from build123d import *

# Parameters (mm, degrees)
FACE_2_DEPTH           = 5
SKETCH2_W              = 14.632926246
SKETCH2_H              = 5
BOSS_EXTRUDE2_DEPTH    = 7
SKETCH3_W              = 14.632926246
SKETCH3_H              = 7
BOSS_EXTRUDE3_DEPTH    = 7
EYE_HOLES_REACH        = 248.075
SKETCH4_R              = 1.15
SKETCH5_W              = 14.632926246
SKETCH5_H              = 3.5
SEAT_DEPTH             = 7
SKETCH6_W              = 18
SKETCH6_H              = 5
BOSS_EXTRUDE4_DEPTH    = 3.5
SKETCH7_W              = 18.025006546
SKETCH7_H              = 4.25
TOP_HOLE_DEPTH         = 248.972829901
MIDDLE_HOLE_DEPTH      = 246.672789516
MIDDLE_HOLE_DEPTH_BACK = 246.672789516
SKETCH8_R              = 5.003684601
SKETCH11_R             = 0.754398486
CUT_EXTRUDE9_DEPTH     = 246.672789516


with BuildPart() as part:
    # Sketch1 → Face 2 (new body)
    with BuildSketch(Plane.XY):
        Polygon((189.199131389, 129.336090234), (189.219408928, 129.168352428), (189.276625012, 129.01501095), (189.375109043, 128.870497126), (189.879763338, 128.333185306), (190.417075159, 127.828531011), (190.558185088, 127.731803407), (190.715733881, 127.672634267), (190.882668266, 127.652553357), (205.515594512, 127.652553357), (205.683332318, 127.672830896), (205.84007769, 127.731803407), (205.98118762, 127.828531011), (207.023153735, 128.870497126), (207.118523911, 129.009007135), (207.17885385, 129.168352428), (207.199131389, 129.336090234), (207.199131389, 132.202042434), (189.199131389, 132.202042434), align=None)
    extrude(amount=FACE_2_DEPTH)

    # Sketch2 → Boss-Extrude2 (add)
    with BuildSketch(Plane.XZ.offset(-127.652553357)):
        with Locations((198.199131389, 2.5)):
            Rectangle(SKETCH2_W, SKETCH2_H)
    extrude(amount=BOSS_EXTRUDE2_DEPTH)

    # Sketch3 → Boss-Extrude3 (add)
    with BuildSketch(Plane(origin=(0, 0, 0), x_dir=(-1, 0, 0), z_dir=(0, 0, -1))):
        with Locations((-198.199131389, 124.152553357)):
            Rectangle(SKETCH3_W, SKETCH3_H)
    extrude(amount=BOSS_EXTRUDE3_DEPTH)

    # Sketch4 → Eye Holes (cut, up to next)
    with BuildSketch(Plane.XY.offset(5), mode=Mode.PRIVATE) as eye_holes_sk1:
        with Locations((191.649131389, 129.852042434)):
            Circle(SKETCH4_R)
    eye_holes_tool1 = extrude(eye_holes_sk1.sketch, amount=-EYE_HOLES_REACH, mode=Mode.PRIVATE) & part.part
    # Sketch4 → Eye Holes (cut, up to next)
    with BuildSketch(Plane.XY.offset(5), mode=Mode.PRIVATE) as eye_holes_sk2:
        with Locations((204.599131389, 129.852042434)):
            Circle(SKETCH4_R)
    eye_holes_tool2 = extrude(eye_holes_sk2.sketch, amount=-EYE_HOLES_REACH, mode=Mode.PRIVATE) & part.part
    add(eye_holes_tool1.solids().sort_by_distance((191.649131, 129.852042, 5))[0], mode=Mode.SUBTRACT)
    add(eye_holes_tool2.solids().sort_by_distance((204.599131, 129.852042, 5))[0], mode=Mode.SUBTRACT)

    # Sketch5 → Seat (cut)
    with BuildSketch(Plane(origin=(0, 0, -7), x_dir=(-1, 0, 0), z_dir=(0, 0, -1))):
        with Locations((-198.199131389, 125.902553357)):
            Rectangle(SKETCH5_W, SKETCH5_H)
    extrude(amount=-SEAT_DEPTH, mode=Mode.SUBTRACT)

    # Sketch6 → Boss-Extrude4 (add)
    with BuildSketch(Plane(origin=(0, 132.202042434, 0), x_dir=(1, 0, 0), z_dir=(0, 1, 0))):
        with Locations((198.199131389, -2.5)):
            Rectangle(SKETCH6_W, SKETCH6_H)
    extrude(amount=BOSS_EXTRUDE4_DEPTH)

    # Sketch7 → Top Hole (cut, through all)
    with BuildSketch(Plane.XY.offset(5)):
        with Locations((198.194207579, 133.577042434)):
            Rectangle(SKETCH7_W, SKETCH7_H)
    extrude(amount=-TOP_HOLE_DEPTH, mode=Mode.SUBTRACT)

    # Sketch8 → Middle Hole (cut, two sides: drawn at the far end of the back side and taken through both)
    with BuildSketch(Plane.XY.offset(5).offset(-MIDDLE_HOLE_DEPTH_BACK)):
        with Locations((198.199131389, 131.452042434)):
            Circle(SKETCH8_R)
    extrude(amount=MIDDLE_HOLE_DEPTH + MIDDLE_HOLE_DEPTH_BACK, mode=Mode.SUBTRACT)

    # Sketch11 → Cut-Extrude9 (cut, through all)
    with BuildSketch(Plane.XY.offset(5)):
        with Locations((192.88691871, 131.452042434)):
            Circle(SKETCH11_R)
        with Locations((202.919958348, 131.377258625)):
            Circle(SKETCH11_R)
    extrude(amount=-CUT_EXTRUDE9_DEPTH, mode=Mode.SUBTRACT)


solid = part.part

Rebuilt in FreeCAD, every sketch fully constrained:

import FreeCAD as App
import Part
import Sketcher
from FreeCAD import Vector
Q = App.Units.Quantity

doc = App.newDocument("Part")
body = doc.addObject("PartDesign::Body", "Body")

sketch1 = body.newObject("Sketcher::SketchObject", "Sketch")
sketch1.AttachmentSupport = (doc.getObject("XY_Plane"), [""])
sketch1.MapMode = "FlatFace"
sketch1.addGeometry([
    Part.LineSegment(Vector(189.199131, 129.33609, 0), Vector(189.219409, 129.168352, 0)),
    Part.LineSegment(Vector(189.219409, 129.168352, 0), Vector(189.276625, 129.015011, 0)),
    Part.LineSegment(Vector(189.276625, 129.015011, 0), Vector(189.375109, 128.870497, 0)),
    Part.LineSegment(Vector(189.375109, 128.870497, 0), Vector(189.879763, 128.333185, 0)),
    Part.LineSegment(Vector(189.879763, 128.333185, 0), Vector(190.417075, 127.828531, 0)),
    Part.LineSegment(Vector(190.417075, 127.828531, 0), Vector(190.558185, 127.731803, 0)),
    Part.LineSegment(Vector(190.558185, 127.731803, 0), Vector(190.715734, 127.672634, 0)),
    Part.LineSegment(Vector(190.715734, 127.672634, 0), Vector(190.882668, 127.652553, 0)),
    Part.LineSegment(Vector(190.882668, 127.652553, 0), Vector(205.515595, 127.652553, 0)),
    Part.LineSegment(Vector(205.515595, 127.652553, 0), Vector(205.683332, 127.672831, 0)),
    Part.LineSegment(Vector(205.683332, 127.672831, 0), Vector(205.840078, 127.731803, 0)),
    Part.LineSegment(Vector(205.840078, 127.731803, 0), Vector(205.981188, 127.828531, 0)),
    Part.LineSegment(Vector(205.981188, 127.828531, 0), Vector(207.023154, 128.870497, 0)),
    Part.LineSegment(Vector(207.023154, 128.870497, 0), Vector(207.118524, 129.009007, 0)),
    Part.LineSegment(Vector(207.118524, 129.009007, 0), Vector(207.178854, 129.168352, 0)),
    Part.LineSegment(Vector(207.178854, 129.168352, 0), Vector(207.199131, 129.33609, 0)),
    Part.LineSegment(Vector(207.199131, 129.33609, 0), Vector(207.199131, 132.202042, 0)),
    Part.LineSegment(Vector(207.199131, 132.202042, 0), Vector(189.199131, 132.202042, 0)),
    Part.LineSegment(Vector(189.199131, 132.202042, 0), Vector(189.199131, 129.33609, 0)),
], False)
sketch1.addConstraint([
    Sketcher.Constraint("Coincident", 0, 2, 1, 1),
    Sketcher.Constraint("Coincident", 1, 2, 2, 1),
    Sketcher.Constraint("Coincident", 2, 2, 3, 1),
    Sketcher.Constraint("Coincident", 3, 2, 4, 1),
    Sketcher.Constraint("Coincident", 4, 2, 5, 1),
    Sketcher.Constraint("Coincident", 5, 2, 6, 1),
    Sketcher.Constraint("Coincident", 6, 2, 7, 1),
    Sketcher.Constraint("Coincident", 7, 2, 8, 1),
    Sketcher.Constraint("Coincident", 8, 2, 9, 1),
    Sketcher.Constraint("Coincident", 9, 2, 10, 1),
    Sketcher.Constraint("Coincident", 10, 2, 11, 1),
    Sketcher.Constraint("Coincident", 11, 2, 12, 1),
    Sketcher.Constraint("Coincident", 12, 2, 13, 1),
    Sketcher.Constraint("Coincident", 13, 2, 14, 1),
    Sketcher.Constraint("Coincident", 14, 2, 15, 1),
    Sketcher.Constraint("Coincident", 15, 2, 16, 1),
    Sketcher.Constraint("Coincident", 16, 2, 17, 1),
    Sketcher.Constraint("Coincident", 17, 2, 18, 1),
    Sketcher.Constraint("Coincident", 18, 2, 0, 1),
    Sketcher.Constraint("Horizontal", 8),
    Sketcher.Constraint("Vertical", 16),
    Sketcher.Constraint("Horizontal", 17),
    Sketcher.Constraint("Vertical", 18),
    Sketcher.Constraint("Perpendicular", 0, 9),
    Sketcher.Constraint("Horizontal", 5, 2, 10, 2),
    Sketcher.Constraint("Horizontal", 4, 2, 11, 2),
    Sketcher.Constraint("Horizontal", 2, 2, 12, 2),
    Sketcher.Constraint("Horizontal", 0, 2, 14, 2),
    Sketcher.Constraint("Horizontal", 15, 2, 18, 2),
    Sketcher.Constraint("Equal", 3, 4),
    Sketcher.Constraint("Equal", 0, 9),
    Sketcher.Constraint("Equal", 5, 11),
    Sketcher.Constraint("Equal", 9, 15),
    Sketcher.Constraint("DistanceX", 17, 2, 17, 1, 18.0),
    Sketcher.Constraint("Angle", 12, Q("45 deg")),
    Sketcher.Constraint("DistanceX", 0, 2, 2, 2, 0.1557),
    Sketcher.Constraint("DistanceX", 6, 2, 9, 2, 14.967598),
    Sketcher.Constraint("DistanceY", 9, 2, 4, 2, 0.1557),
    Sketcher.Constraint("DistanceX", 12, 2, 14, 2, 0.1557),
    Sketcher.Constraint("Distance", 0, 0.168959),
    Sketcher.Constraint("Distance", 1, 0.163668),
    Sketcher.Constraint("Distance", 2, 0.174881),
    Sketcher.Constraint("Distance", 5, 0.17108),
    Sketcher.Constraint("Distance", 10, 0.167472),
    Sketcher.Constraint("Distance", 13, 0.168168),
    Sketcher.Constraint("DistanceX", 8, 1, 8, 2, 14.632926),
    Sketcher.Constraint("DistanceY", 16, 1, 16, 2, 2.865952),
    Sketcher.Constraint("DistanceX", -1, 1, 0, 2, 189.219409),
    Sketcher.Constraint("DistanceY", -1, 1, 1, 2, 129.015011),
    Sketcher.Constraint("DistanceY", -1, 1, 4, 2, 127.828531),
    Sketcher.Constraint("DistanceX", -1, 1, 7, 2, 190.882668),
    Sketcher.Constraint("DistanceX", -1, 1, 15, 2, 207.199131),
    Sketcher.Constraint("DistanceY", -1, 1, 15, 2, 129.33609),
    Sketcher.Constraint("DistanceY", 3, 2, 2, 2, 0.537312),
    Sketcher.Constraint("DistanceX", 1, 2, 3, 2, 0.603138),
    Sketcher.Constraint("DistanceY", 6, 2, 5, 2, 0.059169),
    Sketcher.Constraint("DistanceX", 12, 2, 13, 2, 0.09537),
])
pad1 = body.newObject("PartDesign::Pad", "Pad")
pad1.Profile = sketch1
pad1.Length = 5

sketch2 = body.newObject("Sketcher::SketchObject", "Sketch001")
sketch2.AttachmentSupport = (doc.getObject("XZ_Plane"), [""])
sketch2.MapMode = "FlatFace"
sketch2.AttachmentOffset = App.Placement(Vector(0, 0, -127.652553), App.Rotation())
sketch2.addGeometry([
    Part.LineSegment(Vector(190.882668, 5, 0), Vector(190.882668, 0, 0)),
    Part.LineSegment(Vector(190.882668, 0, 0), Vector(205.515595, 0, 0)),
    Part.LineSegment(Vector(205.515595, 0, 0), Vector(205.515595, 5, 0)),
    Part.LineSegment(Vector(205.515595, 5, 0), Vector(190.882668, 5, 0)),
], False)
sketch2.addConstraint([
    Sketcher.Constraint("Coincident", 0, 2, 1, 1),
    Sketcher.Constraint("Coincident", 1, 2, 2, 1),
    Sketcher.Constraint("Coincident", 2, 2, 3, 1),
    Sketcher.Constraint("Coincident", 3, 2, 0, 1),
    Sketcher.Constraint("Vertical", 0),
    Sketcher.Constraint("Horizontal", 1),
    Sketcher.Constraint("Vertical", 2),
    Sketcher.Constraint("Horizontal", 3),
    Sketcher.Constraint("PointOnObject", 0, 2, -1),
    Sketcher.Constraint("DistanceY", 0, 2, 0, 1, 5.0),
    Sketcher.Constraint("DistanceX", 1, 1, 1, 2, 14.632926),
    Sketcher.Constraint("DistanceX", -1, 1, 0, 2, 190.882668),
])
pad2 = body.newObject("PartDesign::Pad", "Pad001")
pad2.Profile = sketch2
pad2.Length = 7

sketch3 = body.newObject("Sketcher::SketchObject", "Sketch002")
sketch3.AttachmentSupport = (doc.getObject("XY_Plane"), [""])
sketch3.MapMode = "FlatFace"
sketch3.addGeometry([
    Part.LineSegment(Vector(205.515595, 127.652553, 0), Vector(205.515595, 120.652553, 0)),
    Part.LineSegment(Vector(205.515595, 120.652553, 0), Vector(190.882668, 120.652553, 0)),
    Part.LineSegment(Vector(190.882668, 120.652553, 0), Vector(190.882668, 127.652553, 0)),
    Part.LineSegment(Vector(190.882668, 127.652553, 0), Vector(205.515595, 127.652553, 0)),
], False)
sketch3.addConstraint([
    Sketcher.Constraint("Coincident", 0, 2, 1, 1),
    Sketcher.Constraint("Coincident", 1, 2, 2, 1),
    Sketcher.Constraint("Coincident", 2, 2, 3, 1),
    Sketcher.Constraint("Coincident", 3, 2, 0, 1),
    Sketcher.Constraint("Vertical", 0),
    Sketcher.Constraint("Horizontal", 1),
    Sketcher.Constraint("Vertical", 2),
    Sketcher.Constraint("Horizontal", 3),
    Sketcher.Constraint("DistanceY", 0, 2, 0, 1, 7.0),
    Sketcher.Constraint("DistanceX", 1, 2, 1, 1, 14.632926),
    Sketcher.Constraint("DistanceX", -1, 1, 1, 2, 190.882668),
    Sketcher.Constraint("DistanceY", -1, 1, 0, 2, 120.652553),
])
pad3 = body.newObject("PartDesign::Pad", "Pad002")
pad3.Profile = sketch3
pad3.Length = 7
pad3.Reversed = True

sketch4 = body.newObject("Sketcher::SketchObject", "Sketch003")
sketch4.AttachmentSupport = (doc.getObject("XY_Plane"), [""])
sketch4.MapMode = "FlatFace"
sketch4.AttachmentOffset = App.Placement(Vector(0, 0, 5), App.Rotation())
sketch4.addGeometry(Part.Circle(Vector(191.649131, 129.852042, 0), Vector(0, 0, 1), 1.15), False)
sketch4.addConstraint([
    Sketcher.Constraint("Diameter", 0, 2.3),
    Sketcher.Constraint("DistanceX", -1, 1, 0, 3, 191.649131),
    Sketcher.Constraint("DistanceY", -1, 1, 0, 3, 129.852042),
])
pocket1 = body.newObject("PartDesign::Pocket", "Pocket")
pocket1.Profile = sketch4
pocket1.Type = "UpToFirst"

sketch5 = body.newObject("Sketcher::SketchObject", "Sketch004")
sketch5.AttachmentSupport = (doc.getObject("XY_Plane"), [""])
sketch5.MapMode = "FlatFace"
sketch5.AttachmentOffset = App.Placement(Vector(0, 0, 5), App.Rotation())
sketch5.addGeometry(Part.Circle(Vector(204.599131, 129.852042, 0), Vector(0, 0, 1), 1.15), False)
sketch5.addConstraint([
    Sketcher.Constraint("Diameter", 0, 2.3),
    Sketcher.Constraint("DistanceX", -1, 1, 0, 3, 204.599131),
    Sketcher.Constraint("DistanceY", -1, 1, 0, 3, 129.852042),
])
pocket2 = body.newObject("PartDesign::Pocket", "Pocket001")
pocket2.Profile = sketch5
pocket2.Type = "UpToFirst"

sketch6 = body.newObject("Sketcher::SketchObject", "Sketch005")
sketch6.AttachmentSupport = (doc.getObject("XY_Plane"), [""])
sketch6.MapMode = "FlatFace"
sketch6.AttachmentOffset = App.Placement(Vector(0, 0, -7), App.Rotation())
sketch6.addGeometry([
    Part.LineSegment(Vector(205.515595, 127.652553, 0), Vector(205.515595, 124.152553, 0)),
    Part.LineSegment(Vector(205.515595, 124.152553, 0), Vector(190.882668, 124.152553, 0)),
    Part.LineSegment(Vector(190.882668, 124.152553, 0), Vector(190.882668, 127.652553, 0)),
    Part.LineSegment(Vector(190.882668, 127.652553, 0), Vector(205.515595, 127.652553, 0)),
], False)
sketch6.addConstraint([
    Sketcher.Constraint("Coincident", 0, 2, 1, 1),
    Sketcher.Constraint("Coincident", 1, 2, 2, 1),
    Sketcher.Constraint("Coincident", 2, 2, 3, 1),
    Sketcher.Constraint("Coincident", 3, 2, 0, 1),
    Sketcher.Constraint("Vertical", 0),
    Sketcher.Constraint("Horizontal", 1),
    Sketcher.Constraint("Vertical", 2),
    Sketcher.Constraint("Horizontal", 3),
    Sketcher.Constraint("DistanceY", 0, 2, 0, 1, 3.5),
    Sketcher.Constraint("DistanceX", 1, 2, 1, 1, 14.632926),
    Sketcher.Constraint("DistanceX", -1, 1, 1, 2, 190.882668),
    Sketcher.Constraint("DistanceY", -1, 1, 0, 2, 124.152553),
])
pocket3 = body.newObject("PartDesign::Pocket", "Pocket002")
pocket3.Profile = sketch6
pocket3.Length = 7
pocket3.Reversed = True

sketch7 = body.newObject("Sketcher::SketchObject", "Sketch006")
sketch7.AttachmentSupport = (doc.getObject("XZ_Plane"), [""])
sketch7.MapMode = "FlatFace"
sketch7.AttachmentOffset = App.Placement(Vector(0, 0, -132.202042), App.Rotation())
sketch7.addGeometry([
    Part.LineSegment(Vector(189.199131, 0, 0), Vector(189.199131, 5, 0)),
    Part.LineSegment(Vector(189.199131, 5, 0), Vector(207.199131, 5, 0)),
    Part.LineSegment(Vector(207.199131, 5, 0), Vector(207.199131, 0, 0)),
    Part.LineSegment(Vector(207.199131, 0, 0), Vector(189.199131, 0, 0)),
], False)
sketch7.addConstraint([
    Sketcher.Constraint("Coincident", 0, 2, 1, 1),
    Sketcher.Constraint("Coincident", 1, 2, 2, 1),
    Sketcher.Constraint("Coincident", 2, 2, 3, 1),
    Sketcher.Constraint("Coincident", 3, 2, 0, 1),
    Sketcher.Constraint("Vertical", 0),
    Sketcher.Constraint("Horizontal", 1),
    Sketcher.Constraint("Vertical", 2),
    Sketcher.Constraint("Horizontal", 3),
    Sketcher.Constraint("PointOnObject", 2, 2, -1),
    Sketcher.Constraint("DistanceX", 1, 1, 1, 2, 18.0),
    Sketcher.Constraint("DistanceY", 0, 1, 0, 2, 5.0),
    Sketcher.Constraint("DistanceX", -1, 1, 0, 2, 189.199131),
])
pad4 = body.newObject("PartDesign::Pad", "Pad003")
pad4.Profile = sketch7
pad4.Length = 3.5
pad4.Reversed = True

sketch8 = body.newObject("Sketcher::SketchObject", "Sketch007")
sketch8.AttachmentSupport = (doc.getObject("XY_Plane"), [""])
sketch8.MapMode = "FlatFace"
sketch8.AttachmentOffset = App.Placement(Vector(0, 0, 5), App.Rotation())
sketch8.addGeometry([
    Part.LineSegment(Vector(189.181704, 135.702042, 0), Vector(189.181704, 131.452042, 0)),
    Part.LineSegment(Vector(189.181704, 131.452042, 0), Vector(207.206711, 131.452042, 0)),
    Part.LineSegment(Vector(207.206711, 131.452042, 0), Vector(207.206711, 135.702042, 0)),
    Part.LineSegment(Vector(207.206711, 135.702042, 0), Vector(189.181704, 135.702042, 0)),
], False)
sketch8.addConstraint([
    Sketcher.Constraint("Coincident", 0, 2, 1, 1),
    Sketcher.Constraint("Coincident", 1, 2, 2, 1),
    Sketcher.Constraint("Coincident", 2, 2, 3, 1),
    Sketcher.Constraint("Coincident", 3, 2, 0, 1),
    Sketcher.Constraint("Vertical", 0),
    Sketcher.Constraint("Horizontal", 1),
    Sketcher.Constraint("Vertical", 2),
    Sketcher.Constraint("Horizontal", 3),
    Sketcher.Constraint("DistanceY", 0, 2, 0, 1, 4.25),
    Sketcher.Constraint("DistanceX", 1, 1, 1, 2, 18.025007),
    Sketcher.Constraint("DistanceX", -1, 1, 1, 2, 207.206711),
    Sketcher.Constraint("DistanceY", -1, 1, 0, 2, 131.452042),
])
pocket4 = body.newObject("PartDesign::Pocket", "Pocket003")
pocket4.Profile = sketch8
pocket4.Type = "ThroughAll"

sketch9 = body.newObject("Sketcher::SketchObject", "Sketch008")
sketch9.AttachmentSupport = (doc.getObject("XY_Plane"), [""])
sketch9.MapMode = "FlatFace"
sketch9.AttachmentOffset = App.Placement(Vector(0, 0, 5), App.Rotation())
sketch9.addGeometry(Part.Circle(Vector(198.199131, 131.452042, 0), Vector(0, 0, 1), 5.003685), False)
sketch9.addConstraint([
    Sketcher.Constraint("Diameter", 0, 10.007369),
    Sketcher.Constraint("DistanceX", -1, 1, 0, 3, 198.199131),
    Sketcher.Constraint("DistanceY", -1, 1, 0, 3, 131.452042),
])
pocket5 = body.newObject("PartDesign::Pocket", "Pocket004")
pocket5.Profile = sketch9
pocket5.Type = "ThroughAll"
pocket5.Midplane = True

sketch10 = body.newObject("Sketcher::SketchObject", "Sketch009")
sketch10.AttachmentSupport = (doc.getObject("XY_Plane"), [""])
sketch10.MapMode = "FlatFace"
sketch10.AttachmentOffset = App.Placement(Vector(0, 0, 5), App.Rotation())
sketch10.addGeometry([
    Part.Circle(Vector(192.886919, 131.452042, 0), Vector(0, 0, 1), 0.754398),
    Part.Circle(Vector(202.919958, 131.377259, 0), Vector(0, 0, 1), 0.754398),
], False)
sketch10.addConstraint([
    Sketcher.Constraint("Equal", 0, 1),
    Sketcher.Constraint("Diameter", 0, 1.508797),
    Sketcher.Constraint("DistanceX", -1, 1, 0, 3, 192.886919),
    Sketcher.Constraint("DistanceX", -1, 1, 1, 3, 202.919958),
    Sketcher.Constraint("DistanceY", -1, 1, 1, 3, 131.377259),
    Sketcher.Constraint("DistanceY", -1, 1, 0, 3, 131.452042),
])
pocket6 = body.newObject("PartDesign::Pocket", "Pocket005")
pocket6.Profile = sketch10
pocket6.Type = "ThroughAll"

doc.recompute()
